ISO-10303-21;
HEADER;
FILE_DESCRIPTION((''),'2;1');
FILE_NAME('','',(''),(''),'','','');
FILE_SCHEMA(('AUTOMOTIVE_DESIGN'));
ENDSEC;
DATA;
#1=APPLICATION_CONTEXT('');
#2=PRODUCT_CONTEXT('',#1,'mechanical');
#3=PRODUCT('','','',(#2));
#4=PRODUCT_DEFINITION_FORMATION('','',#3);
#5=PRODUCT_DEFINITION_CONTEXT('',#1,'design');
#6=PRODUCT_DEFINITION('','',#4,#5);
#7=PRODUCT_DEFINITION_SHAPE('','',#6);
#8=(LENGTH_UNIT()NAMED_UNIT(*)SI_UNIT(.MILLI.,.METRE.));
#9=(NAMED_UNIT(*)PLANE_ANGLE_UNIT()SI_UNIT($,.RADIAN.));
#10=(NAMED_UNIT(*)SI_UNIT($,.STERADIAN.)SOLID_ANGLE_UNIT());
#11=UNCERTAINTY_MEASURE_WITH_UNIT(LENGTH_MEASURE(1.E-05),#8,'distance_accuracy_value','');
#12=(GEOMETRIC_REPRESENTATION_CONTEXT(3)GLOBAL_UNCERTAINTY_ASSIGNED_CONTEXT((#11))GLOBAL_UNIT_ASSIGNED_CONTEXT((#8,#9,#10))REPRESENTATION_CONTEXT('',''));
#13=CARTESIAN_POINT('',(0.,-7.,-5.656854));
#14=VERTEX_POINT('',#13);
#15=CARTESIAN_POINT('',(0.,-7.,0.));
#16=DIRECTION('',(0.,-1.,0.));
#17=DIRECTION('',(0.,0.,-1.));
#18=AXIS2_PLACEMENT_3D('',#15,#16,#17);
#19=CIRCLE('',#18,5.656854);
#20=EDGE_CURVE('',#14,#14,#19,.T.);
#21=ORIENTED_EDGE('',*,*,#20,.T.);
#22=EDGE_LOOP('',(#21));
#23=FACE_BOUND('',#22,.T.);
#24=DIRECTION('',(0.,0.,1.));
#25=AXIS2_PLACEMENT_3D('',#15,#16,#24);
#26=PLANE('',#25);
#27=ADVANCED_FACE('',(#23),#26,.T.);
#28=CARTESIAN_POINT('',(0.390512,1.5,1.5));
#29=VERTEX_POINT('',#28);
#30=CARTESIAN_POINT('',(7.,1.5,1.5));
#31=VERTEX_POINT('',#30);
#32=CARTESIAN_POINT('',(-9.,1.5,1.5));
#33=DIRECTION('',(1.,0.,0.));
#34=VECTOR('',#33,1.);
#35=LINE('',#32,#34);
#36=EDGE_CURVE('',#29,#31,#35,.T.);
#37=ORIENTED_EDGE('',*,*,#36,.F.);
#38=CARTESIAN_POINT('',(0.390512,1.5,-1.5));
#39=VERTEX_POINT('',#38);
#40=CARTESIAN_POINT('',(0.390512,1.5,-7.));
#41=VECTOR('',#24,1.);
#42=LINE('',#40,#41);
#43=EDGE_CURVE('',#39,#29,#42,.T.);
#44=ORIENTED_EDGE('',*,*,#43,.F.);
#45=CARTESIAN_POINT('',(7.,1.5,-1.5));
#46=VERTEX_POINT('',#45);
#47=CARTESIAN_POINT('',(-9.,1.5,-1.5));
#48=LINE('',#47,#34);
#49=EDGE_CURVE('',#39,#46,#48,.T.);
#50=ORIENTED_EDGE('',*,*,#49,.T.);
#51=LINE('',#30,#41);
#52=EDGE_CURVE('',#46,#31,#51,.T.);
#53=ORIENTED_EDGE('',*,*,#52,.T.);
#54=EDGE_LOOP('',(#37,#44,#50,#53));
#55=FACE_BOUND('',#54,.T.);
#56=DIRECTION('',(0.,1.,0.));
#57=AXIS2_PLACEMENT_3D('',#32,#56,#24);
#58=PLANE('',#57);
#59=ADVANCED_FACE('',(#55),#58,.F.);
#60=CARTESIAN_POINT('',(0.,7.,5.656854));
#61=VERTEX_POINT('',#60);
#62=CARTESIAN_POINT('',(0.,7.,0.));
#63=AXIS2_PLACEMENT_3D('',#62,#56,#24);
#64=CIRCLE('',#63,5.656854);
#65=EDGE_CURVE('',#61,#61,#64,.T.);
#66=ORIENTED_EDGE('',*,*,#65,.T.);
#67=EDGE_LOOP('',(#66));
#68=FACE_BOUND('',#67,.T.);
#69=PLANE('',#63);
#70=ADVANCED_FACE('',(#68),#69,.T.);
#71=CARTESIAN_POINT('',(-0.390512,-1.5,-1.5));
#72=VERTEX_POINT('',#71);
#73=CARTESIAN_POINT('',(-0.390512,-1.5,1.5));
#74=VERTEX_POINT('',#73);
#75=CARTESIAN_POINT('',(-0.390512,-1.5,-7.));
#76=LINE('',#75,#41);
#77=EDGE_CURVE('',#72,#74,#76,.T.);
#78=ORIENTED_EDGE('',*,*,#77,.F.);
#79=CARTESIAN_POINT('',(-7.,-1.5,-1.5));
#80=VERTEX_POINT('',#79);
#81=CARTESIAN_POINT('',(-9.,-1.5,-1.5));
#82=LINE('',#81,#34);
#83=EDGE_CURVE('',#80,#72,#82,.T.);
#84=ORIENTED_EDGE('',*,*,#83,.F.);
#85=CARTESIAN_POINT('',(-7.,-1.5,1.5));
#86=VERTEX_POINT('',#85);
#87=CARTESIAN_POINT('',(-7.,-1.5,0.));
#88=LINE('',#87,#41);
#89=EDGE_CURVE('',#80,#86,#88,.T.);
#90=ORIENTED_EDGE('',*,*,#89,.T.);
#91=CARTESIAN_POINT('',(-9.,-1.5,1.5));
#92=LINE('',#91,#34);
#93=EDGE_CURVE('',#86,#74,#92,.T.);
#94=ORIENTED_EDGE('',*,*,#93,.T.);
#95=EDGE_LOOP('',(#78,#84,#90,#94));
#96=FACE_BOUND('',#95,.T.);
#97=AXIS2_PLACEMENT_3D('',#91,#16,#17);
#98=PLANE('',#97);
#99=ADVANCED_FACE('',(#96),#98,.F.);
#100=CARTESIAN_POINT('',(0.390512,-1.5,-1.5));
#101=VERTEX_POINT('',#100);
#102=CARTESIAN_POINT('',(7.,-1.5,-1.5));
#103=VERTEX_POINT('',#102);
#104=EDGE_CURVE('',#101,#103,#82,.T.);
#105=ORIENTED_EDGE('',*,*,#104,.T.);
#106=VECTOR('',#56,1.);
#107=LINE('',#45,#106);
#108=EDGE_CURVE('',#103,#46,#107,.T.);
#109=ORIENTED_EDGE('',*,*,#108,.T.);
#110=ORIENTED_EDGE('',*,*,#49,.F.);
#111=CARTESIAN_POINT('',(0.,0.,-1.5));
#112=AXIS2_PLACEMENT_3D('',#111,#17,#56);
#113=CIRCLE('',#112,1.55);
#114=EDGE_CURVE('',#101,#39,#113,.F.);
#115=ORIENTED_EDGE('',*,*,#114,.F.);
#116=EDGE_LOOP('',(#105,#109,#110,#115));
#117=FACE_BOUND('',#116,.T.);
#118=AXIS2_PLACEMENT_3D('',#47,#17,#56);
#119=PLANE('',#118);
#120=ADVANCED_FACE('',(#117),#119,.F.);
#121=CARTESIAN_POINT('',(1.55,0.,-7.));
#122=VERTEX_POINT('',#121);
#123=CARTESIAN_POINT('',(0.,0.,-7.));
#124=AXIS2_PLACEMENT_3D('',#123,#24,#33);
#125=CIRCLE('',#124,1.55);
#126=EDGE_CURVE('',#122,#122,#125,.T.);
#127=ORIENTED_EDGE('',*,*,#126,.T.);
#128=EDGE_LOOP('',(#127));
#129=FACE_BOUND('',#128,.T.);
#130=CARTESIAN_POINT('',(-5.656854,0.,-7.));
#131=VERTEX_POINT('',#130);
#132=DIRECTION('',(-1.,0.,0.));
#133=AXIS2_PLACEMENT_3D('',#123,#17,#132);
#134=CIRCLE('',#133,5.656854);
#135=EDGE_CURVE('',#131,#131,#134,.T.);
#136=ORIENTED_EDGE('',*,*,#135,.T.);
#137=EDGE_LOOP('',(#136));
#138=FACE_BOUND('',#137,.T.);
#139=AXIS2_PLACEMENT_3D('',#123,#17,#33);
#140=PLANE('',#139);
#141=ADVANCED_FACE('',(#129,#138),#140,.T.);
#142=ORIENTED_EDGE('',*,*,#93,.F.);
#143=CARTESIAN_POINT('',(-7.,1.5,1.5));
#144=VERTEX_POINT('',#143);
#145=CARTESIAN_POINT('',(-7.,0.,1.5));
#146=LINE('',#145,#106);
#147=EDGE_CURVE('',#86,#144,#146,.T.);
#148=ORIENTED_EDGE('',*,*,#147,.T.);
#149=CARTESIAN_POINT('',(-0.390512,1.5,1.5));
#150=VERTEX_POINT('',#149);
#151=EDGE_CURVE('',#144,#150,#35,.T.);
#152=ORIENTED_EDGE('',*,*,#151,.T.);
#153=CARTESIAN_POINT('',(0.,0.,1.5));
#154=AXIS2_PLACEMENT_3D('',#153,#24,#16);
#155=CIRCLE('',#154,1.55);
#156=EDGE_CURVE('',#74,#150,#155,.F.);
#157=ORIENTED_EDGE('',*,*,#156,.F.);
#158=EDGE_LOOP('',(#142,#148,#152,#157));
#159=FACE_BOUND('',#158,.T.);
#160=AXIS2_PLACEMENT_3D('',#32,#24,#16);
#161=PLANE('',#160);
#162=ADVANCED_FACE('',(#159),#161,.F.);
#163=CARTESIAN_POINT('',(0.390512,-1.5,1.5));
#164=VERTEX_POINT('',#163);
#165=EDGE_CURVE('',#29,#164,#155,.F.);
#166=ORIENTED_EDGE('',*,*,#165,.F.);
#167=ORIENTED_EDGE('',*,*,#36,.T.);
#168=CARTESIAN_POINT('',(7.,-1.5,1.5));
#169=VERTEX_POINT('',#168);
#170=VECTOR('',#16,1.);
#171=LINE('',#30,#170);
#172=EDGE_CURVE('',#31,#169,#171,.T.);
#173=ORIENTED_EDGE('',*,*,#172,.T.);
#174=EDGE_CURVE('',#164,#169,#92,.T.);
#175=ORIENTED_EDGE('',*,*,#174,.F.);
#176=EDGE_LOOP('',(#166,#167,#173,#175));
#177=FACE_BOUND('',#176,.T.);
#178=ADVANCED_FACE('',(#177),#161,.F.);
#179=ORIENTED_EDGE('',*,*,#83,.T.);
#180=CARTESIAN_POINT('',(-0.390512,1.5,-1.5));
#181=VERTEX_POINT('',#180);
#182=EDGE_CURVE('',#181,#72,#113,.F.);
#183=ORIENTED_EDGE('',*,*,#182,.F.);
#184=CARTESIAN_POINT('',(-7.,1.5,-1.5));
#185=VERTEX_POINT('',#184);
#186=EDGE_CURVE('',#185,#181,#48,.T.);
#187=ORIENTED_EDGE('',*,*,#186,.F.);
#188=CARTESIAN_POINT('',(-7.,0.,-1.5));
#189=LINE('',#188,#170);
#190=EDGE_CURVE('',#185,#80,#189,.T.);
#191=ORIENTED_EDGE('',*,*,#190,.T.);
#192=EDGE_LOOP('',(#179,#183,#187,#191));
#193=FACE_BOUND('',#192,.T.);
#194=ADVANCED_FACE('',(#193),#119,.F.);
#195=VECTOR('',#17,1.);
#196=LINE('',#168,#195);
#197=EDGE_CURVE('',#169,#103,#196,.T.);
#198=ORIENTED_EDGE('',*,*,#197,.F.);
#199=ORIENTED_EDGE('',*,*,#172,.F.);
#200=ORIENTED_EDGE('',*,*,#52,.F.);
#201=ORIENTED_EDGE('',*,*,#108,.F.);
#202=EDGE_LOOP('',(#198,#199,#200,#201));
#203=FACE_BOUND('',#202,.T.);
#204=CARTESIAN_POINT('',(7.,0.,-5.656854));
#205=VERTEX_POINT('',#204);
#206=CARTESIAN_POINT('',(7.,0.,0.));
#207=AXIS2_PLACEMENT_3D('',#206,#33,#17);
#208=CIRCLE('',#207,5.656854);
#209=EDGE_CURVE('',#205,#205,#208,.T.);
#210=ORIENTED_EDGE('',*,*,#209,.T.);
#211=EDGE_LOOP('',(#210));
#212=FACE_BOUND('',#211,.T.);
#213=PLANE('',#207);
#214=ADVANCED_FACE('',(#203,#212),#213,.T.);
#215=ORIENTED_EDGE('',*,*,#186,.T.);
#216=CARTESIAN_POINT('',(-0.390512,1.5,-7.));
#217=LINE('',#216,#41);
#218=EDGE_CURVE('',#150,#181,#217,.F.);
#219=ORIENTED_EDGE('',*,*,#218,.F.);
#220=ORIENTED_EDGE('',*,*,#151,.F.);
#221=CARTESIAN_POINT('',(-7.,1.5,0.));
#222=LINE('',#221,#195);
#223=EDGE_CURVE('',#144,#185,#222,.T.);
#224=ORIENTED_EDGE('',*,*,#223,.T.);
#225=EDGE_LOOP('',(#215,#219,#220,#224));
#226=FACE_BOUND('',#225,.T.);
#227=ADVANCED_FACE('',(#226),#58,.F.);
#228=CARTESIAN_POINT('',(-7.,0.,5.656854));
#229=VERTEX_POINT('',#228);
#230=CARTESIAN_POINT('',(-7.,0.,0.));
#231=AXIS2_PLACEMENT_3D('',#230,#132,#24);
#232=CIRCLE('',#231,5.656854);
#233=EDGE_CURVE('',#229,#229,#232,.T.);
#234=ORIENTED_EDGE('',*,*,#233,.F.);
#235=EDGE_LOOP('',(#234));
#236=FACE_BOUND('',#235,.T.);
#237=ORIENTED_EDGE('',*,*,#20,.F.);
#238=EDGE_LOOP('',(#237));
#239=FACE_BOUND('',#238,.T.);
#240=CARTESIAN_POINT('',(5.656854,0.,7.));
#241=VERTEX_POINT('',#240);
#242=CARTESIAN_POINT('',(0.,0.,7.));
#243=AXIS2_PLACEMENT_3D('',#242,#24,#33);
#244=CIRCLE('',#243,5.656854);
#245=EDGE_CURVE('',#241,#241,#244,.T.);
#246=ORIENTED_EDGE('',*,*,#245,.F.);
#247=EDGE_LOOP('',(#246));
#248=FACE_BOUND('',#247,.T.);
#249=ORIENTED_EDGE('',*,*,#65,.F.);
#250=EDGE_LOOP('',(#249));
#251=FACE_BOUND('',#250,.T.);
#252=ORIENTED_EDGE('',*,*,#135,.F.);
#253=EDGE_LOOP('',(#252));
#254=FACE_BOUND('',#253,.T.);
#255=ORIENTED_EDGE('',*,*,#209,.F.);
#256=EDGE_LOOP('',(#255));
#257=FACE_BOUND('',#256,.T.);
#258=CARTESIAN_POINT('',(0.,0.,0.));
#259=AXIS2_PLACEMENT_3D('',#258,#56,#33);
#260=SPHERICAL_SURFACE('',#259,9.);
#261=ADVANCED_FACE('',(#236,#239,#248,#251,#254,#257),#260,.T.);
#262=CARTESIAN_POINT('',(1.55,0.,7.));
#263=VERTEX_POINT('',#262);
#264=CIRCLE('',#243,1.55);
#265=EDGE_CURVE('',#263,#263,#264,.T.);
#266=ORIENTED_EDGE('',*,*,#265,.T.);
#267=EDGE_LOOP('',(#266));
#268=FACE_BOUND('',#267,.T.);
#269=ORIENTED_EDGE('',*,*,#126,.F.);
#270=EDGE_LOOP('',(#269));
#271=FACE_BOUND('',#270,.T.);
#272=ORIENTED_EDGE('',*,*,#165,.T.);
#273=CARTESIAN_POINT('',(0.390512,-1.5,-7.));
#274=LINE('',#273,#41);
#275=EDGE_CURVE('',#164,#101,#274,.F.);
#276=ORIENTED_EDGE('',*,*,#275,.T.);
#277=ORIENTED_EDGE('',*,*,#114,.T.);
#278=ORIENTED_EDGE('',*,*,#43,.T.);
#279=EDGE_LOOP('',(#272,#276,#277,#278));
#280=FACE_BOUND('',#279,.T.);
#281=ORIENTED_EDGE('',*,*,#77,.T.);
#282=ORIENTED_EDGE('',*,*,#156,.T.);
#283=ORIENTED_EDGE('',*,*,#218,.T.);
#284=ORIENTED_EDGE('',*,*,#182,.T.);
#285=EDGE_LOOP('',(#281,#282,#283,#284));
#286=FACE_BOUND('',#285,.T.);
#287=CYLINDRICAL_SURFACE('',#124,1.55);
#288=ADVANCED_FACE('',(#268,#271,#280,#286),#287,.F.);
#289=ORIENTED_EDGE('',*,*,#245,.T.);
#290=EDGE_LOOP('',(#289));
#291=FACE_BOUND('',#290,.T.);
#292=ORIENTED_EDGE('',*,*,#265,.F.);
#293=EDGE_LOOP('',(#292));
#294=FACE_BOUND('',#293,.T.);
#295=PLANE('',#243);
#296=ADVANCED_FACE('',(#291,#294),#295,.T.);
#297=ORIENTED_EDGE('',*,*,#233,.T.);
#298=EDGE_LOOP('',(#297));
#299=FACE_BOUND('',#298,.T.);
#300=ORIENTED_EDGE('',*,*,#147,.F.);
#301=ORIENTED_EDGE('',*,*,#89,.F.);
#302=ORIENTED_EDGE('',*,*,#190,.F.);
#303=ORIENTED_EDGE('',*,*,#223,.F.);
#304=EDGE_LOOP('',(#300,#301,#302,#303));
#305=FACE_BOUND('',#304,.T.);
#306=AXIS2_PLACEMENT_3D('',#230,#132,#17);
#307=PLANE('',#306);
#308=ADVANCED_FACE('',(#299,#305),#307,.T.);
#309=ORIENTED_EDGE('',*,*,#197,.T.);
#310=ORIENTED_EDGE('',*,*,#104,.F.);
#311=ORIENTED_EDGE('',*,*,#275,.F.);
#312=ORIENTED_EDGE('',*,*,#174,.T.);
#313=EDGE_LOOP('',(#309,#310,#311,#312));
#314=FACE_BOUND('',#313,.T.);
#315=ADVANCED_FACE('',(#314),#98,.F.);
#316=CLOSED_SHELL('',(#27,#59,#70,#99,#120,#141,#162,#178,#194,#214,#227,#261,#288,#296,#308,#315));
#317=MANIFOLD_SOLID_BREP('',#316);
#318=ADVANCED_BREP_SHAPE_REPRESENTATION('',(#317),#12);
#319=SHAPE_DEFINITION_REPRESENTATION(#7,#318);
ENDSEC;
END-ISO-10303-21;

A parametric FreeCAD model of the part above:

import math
import FreeCAD as App
import Part
import Sketcher


def add_polygon(sketch, points):
    """Adds a closed chain of lines whose ends are joined by coincident constraints."""
    first, n = sketch.GeometryCount, len(points)
    for a, b in zip(points, points[1:] + points[:1]):
        sketch.addGeometry(Part.LineSegment(App.Vector(*a, 0), App.Vector(*b, 0)), False)
    for i in range(n):
        sketch.addConstraint(Sketcher.Constraint("Coincident", first + i, 2, first + (i + 1) % n, 1))

doc = App.newDocument("Part")
body = doc.addObject("PartDesign::Body", "Body")

# Sketch on XY plane
sketch1 = body.newObject("Sketcher::SketchObject", "Sketch")
sketch1.AttachmentSupport = (doc.getObject("XY_Plane"), [""])
sketch1.MapMode = "FlatFace"
sketch1.addGeometry([
    Part.LineSegment(App.Vector(0, 9, 0), App.Vector(0, -9, 0)),
    Part.ArcOfCircle(Part.Circle(App.Vector(0, 0, 0), App.Vector(0, 0, 1), 9), math.radians(-90), math.radians(90)),
], False)
sketch1.addConstraint([
    Sketcher.Constraint("Coincident", 0, 1, 1, 2),
    Sketcher.Constraint("Coincident", 1, 1, 0, 2),
    Sketcher.Constraint("Vertical", 0),
    Sketcher.Constraint("Coincident", 1, 3, -1, 1),
    Sketcher.Constraint("PointOnObject", 0, 1, -2),
    Sketcher.Constraint("Radius", 1, 9.0),
])
revolution = body.newObject("PartDesign::Revolution", "Revolution")
revolution.Profile = sketch1
revolution.ReferenceAxis = (sketch1, ["V_Axis"])
revolution.Angle = 360

# Sketch on XY plane
sketch2 = body.newObject("Sketcher::SketchObject", "Sketch001")
sketch2.AttachmentSupport = (doc.getObject("XY_Plane"), [""])
sketch2.MapMode = "FlatFace"
sketch2.AttachmentOffset = App.Placement(App.Vector(0, 0, 9), App.Rotation())
sketch2.addGeometry(Part.Circle(App.Vector(0, 0, 0), App.Vector(0, 0, 1), 10), False)
sketch2.addConstraint([
    Sketcher.Constraint("Coincident", 0, 3, -1, 1),
    Sketcher.Constraint("Diameter", 0, 20.0),
])
pocket1 = body.newObject("PartDesign::Pocket", "Pocket")
pocket1.Profile = sketch2
pocket1.Length = 2
doc.recompute()

mirrored = body.newObject("PartDesign::Mirrored", "Mirrored")
mirrored.Originals = [pocket1]
mirrored.MirrorPlane = (doc.getObject("XY_Plane"), [""])
body.Tip = mirrored

# Sketch on XZ plane
sketch3 = body.newObject("Sketcher::SketchObject", "Sketch002")
sketch3.AttachmentSupport = (doc.getObject("XZ_Plane"), [""])
sketch3.MapMode = "FlatFace"
sketch3.AttachmentOffset = App.Placement(App.Vector(0, 0, -9), App.Rotation())
sketch3.addGeometry(Part.Circle(App.Vector(0, 0, 0), App.Vector(0, 0, 1), 10), False)
sketch3.addConstraint([
    Sketcher.Constraint("Coincident", 0, 3, -1, 1),
    Sketcher.Constraint("Diameter", 0, 20.0),
])
pocket2 = body.newObject("PartDesign::Pocket", "Pocket001")
pocket2.Profile = sketch3
pocket2.Length = 2
pocket2.Reversed = True
doc.recompute()

mirrored2 = body.newObject("PartDesign::Mirrored", "Mirrored001")
mirrored2.Originals = [pocket2]
mirrored2.MirrorPlane = (doc.getObject("XZ_Plane"), [""])
body.Tip = mirrored2

# Sketch on YZ plane
sketch4 = body.newObject("Sketcher::SketchObject", "Sketch003")
sketch4.AttachmentSupport = (doc.getObject("YZ_Plane"), [""])
sketch4.MapMode = "FlatFace"
sketch4.AttachmentOffset = App.Placement(App.Vector(0, 0, 9), App.Rotation())
sketch4.addGeometry(Part.Circle(App.Vector(0, 0, 0), App.Vector(0, 0, 1), 10), False)
sketch4.addConstraint([
    Sketcher.Constraint("Coincident", 0, 3, -1, 1),
    Sketcher.Constraint("Diameter", 0, 20.0),
])
pocket3 = body.newObject("PartDesign::Pocket", "Pocket002")
pocket3.Profile = sketch4
pocket3.Length = 2
doc.recompute()

mirrored3 = body.newObject("PartDesign::Mirrored", "Mirrored002")
mirrored3.Originals = [pocket3]
mirrored3.MirrorPlane = (doc.getObject("YZ_Plane"), [""])
body.Tip = mirrored3

# Sketch on XY plane
sketch5 = body.newObject("Sketcher::SketchObject", "Sketch004")
sketch5.AttachmentSupport = (doc.getObject("XY_Plane"), [""])
sketch5.MapMode = "FlatFace"
sketch5.AttachmentOffset = App.Placement(App.Vector(0, 0, 7), App.Rotation())
sketch5.addGeometry(Part.Circle(App.Vector(0, 0, 0), App.Vector(0, 0, 1), 1.6), False)
sketch5.addConstraint([
    Sketcher.Constraint("Coincident", 0, 3, -1, 1),
    Sketcher.Constraint("Diameter", 0, 3.1),
])
pocket4 = body.newObject("PartDesign::Pocket", "Pocket003")
pocket4.Profile = sketch5
pocket4.Type = "ThroughAll"

# Sketch on YZ plane
sketch6 = body.newObject("Sketcher::SketchObject", "Sketch005")
sketch6.AttachmentSupport = (doc.getObject("YZ_Plane"), [""])
sketch6.MapMode = "FlatFace"
sketch6.AttachmentOffset = App.Placement(App.Vector(0, 0, 7), App.Rotation())
add_polygon(sketch6, [(1.5, 1.5), (-1.5, 1.5), (-1.5, -1.5), (1.5, -1.5)])  # lines 0-3
sketch6.addConstraint([
    Sketcher.Constraint("Horizontal", 0),
    Sketcher.Constraint("Vertical", 1),
    Sketcher.Constraint("Horizontal", 2),
    Sketcher.Constraint("Vertical", 3),
    Sketcher.Constraint("Symmetric", 0, 2, 2, 2, -1, 1),
    Sketcher.Constraint("Equal", 2, 1),
    Sketcher.Constraint("DistanceX", 0, 2, 0, 1, 3.0),
])
pocket5 = body.newObject("PartDesign::Pocket", "Pocket004")
pocket5.Profile = sketch6
pocket5.Type = "ThroughAll"

doc.recompute()
